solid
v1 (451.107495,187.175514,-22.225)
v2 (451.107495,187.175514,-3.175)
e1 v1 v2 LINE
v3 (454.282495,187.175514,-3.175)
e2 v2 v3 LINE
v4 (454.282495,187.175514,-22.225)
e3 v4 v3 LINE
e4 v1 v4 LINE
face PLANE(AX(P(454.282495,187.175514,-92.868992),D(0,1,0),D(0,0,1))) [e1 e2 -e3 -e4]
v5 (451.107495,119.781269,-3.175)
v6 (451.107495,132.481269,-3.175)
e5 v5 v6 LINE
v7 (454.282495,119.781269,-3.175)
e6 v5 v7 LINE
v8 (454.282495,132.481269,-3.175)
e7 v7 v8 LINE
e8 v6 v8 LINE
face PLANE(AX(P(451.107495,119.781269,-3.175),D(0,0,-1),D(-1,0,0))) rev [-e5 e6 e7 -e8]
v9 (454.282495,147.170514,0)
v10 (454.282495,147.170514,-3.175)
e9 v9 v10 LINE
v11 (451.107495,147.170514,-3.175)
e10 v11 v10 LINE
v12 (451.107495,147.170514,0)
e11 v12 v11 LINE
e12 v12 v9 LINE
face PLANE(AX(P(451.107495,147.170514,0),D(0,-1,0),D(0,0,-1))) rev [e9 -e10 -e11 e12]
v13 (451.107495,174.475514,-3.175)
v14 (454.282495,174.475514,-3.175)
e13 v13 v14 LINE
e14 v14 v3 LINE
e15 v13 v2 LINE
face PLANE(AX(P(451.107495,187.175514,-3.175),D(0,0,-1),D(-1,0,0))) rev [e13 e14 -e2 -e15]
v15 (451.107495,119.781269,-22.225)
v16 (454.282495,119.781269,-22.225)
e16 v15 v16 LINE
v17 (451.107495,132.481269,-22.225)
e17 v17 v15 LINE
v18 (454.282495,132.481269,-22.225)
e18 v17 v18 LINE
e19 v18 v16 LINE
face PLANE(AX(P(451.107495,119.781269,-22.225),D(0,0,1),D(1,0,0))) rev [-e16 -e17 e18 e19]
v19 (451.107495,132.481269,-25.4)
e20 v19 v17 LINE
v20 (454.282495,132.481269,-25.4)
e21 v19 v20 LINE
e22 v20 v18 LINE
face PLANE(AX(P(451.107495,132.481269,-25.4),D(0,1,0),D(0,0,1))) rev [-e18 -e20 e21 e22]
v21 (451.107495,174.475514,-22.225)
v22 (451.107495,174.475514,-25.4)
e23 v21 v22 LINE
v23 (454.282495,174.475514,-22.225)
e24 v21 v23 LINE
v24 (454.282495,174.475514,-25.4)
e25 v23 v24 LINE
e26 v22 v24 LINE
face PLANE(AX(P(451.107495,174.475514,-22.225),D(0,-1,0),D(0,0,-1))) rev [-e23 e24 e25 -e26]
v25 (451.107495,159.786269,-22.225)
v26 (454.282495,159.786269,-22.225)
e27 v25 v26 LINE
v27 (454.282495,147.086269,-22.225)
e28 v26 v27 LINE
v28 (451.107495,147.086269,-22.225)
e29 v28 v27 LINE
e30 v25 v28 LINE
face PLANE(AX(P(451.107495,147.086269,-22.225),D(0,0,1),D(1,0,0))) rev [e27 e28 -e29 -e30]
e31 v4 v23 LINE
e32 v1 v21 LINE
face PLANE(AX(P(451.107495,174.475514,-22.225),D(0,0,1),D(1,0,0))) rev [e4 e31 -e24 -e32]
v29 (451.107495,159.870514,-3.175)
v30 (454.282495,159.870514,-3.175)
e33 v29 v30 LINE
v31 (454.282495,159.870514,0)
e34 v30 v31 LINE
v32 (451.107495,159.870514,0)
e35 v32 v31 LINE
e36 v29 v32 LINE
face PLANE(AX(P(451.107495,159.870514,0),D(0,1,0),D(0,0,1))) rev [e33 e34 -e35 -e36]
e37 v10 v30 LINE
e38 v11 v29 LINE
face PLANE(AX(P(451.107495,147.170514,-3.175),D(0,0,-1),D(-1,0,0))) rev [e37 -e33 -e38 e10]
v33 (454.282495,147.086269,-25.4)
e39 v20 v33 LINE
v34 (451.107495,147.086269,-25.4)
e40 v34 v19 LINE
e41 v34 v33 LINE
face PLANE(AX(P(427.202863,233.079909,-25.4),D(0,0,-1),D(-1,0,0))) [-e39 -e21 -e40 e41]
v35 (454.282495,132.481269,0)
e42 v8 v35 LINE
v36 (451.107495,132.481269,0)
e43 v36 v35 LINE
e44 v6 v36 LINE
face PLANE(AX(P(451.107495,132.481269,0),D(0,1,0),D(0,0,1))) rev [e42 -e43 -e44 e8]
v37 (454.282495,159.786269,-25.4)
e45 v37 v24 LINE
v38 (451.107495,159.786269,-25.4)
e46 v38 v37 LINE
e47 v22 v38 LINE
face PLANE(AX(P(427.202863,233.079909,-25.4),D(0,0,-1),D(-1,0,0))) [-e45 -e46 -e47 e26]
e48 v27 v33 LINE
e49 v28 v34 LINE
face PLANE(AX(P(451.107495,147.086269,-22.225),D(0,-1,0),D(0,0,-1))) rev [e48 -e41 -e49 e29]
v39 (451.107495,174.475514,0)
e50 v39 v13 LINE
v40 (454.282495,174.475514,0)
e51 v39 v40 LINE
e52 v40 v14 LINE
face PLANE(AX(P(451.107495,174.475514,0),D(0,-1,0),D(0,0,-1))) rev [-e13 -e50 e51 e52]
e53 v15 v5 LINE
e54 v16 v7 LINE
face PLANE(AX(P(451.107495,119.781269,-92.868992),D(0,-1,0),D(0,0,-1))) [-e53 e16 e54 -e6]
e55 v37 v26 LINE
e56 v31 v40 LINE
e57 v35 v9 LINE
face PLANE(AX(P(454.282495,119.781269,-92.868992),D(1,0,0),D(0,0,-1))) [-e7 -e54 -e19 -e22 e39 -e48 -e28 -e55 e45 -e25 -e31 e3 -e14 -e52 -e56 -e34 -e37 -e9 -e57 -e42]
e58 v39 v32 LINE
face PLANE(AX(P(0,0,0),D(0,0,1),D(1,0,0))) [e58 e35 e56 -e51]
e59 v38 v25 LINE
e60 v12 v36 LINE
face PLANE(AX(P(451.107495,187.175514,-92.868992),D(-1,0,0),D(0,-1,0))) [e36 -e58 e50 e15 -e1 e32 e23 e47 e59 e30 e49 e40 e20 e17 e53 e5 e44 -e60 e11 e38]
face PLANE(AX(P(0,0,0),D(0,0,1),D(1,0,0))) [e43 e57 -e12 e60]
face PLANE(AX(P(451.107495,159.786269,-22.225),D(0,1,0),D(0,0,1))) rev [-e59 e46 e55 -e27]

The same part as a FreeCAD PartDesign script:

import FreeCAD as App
import Part
import Sketcher

V = App.Vector
Q = App.Units.Quantity

doc = App.newDocument("Part")
body = doc.addObject("PartDesign::Body", "Body")

sketch1 = doc.addObject("Sketcher::SketchObject", "Sketch")
body.addObject(sketch1)
sketch1.AttachmentSupport = (doc.XY_Plane, [""])
sketch1.MapMode = "FlatFace"
sketch1.addGeometry(Part.LineSegment(V(451.1, 187.2, 0), V(451.1, 119.8, 0)), False)
sketch1.addGeometry(Part.LineSegment(V(451.1, 119.8, 0), V(454.3, 119.8, 0)), False)
sketch1.addGeometry(Part.LineSegment(V(454.3, 119.8, 0), V(454.3, 187.2, 0)), False)
sketch1.addGeometry(Part.LineSegment(V(454.3, 187.2, 0), V(451.1, 187.2, 0)), False)
sketch1.addConstraint(Sketcher.Constraint("Coincident", 0, 2, 1, 1))
sketch1.addConstraint(Sketcher.Constraint("Coincident", 1, 2, 2, 1))
sketch1.addConstraint(Sketcher.Constraint("Coincident", 2, 2, 3, 1))
sketch1.addConstraint(Sketcher.Constraint("Coincident", 3, 2, 0, 1))
sketch1.addConstraint(Sketcher.Constraint("Vertical", 0))
sketch1.addConstraint(Sketcher.Constraint("Horizontal", 1))
sketch1.addConstraint(Sketcher.Constraint("Vertical", 2))
sketch1.addConstraint(Sketcher.Constraint("Horizontal", 3))
sketch1.addConstraint(Sketcher.Constraint("DistanceX", 1, 1, 1, 2, Q("0.125 in")))
sketch1.addConstraint(Sketcher.Constraint("DistanceY", 0, 2, 0, 1, 67.394245))
sketch1.addConstraint(Sketcher.Constraint("DistanceY", -1, 1, 0, 2, 119.781269))
sketch1.addConstraint(Sketcher.Constraint("DistanceX", -1, 1, 0, 2, 451.107495))
pad1 = doc.addObject("PartDesign::Pad", "Pad")
body.addObject(pad1)
pad1.Profile = sketch1
pad1.Length = Q("1 in")
pad1.Reversed = True

sketch2 = doc.addObject("Sketcher::SketchObject", "Sketch001")
body.addObject(sketch2)
sketch2.AttachmentSupport = (doc.YZ_Plane, [""])
sketch2.MapMode = "FlatFace"
sketch2.AttachmentOffset = App.Placement(V(0, 0, 454.282495), App.Rotation())
sketch2.addGeometry(Part.LineSegment(V(187.2, 0, 0), V(174.5, 0, 0)), False)
sketch2.addGeometry(Part.LineSegment(V(174.5, 0, 0), V(174.5, -3.2, 0)), False)
sketch2.addGeometry(Part.LineSegment(V(174.5, -3.2, 0), V(187.2, -3.2, 0)), False)
sketch2.addGeometry(Part.LineSegment(V(187.2, -3.2, 0), V(187.2, 0, 0)), False)
sketch2.addGeometry(Part.LineSegment(V(187.2, -22.2, 0), V(174.5, -22.2, 0)), False)
sketch2.addGeometry(Part.LineSegment(V(174.5, -22.2, 0), V(174.5, -25.4, 0)), False)
sketch2.addGeometry(Part.LineSegment(V(174.5, -25.4, 0), V(187.2, -25.4, 0)), False)
sketch2.addGeometry(Part.LineSegment(V(187.2, -25.4, 0), V(187.2, -22.2, 0)), False)
sketch2.addGeometry(Part.LineSegment(V(132.5, -22.2, 0), V(119.8, -22.2, 0)), False)
sketch2.addGeometry(Part.LineSegment(V(119.8, -22.2, 0), V(119.8, -25.4, 0)), False)
sketch2.addGeometry(Part.LineSegment(V(119.8, -25.4, 0), V(132.5, -25.4, 0)), False)
sketch2.addGeometry(Part.LineSegment(V(132.5, -25.4, 0), V(132.5, -22.2, 0)), False)
sketch2.addGeometry(Part.LineSegment(V(132.5, 0, 0), V(119.8, 0, 0)), False)
sketch2.addGeometry(Part.LineSegment(V(119.8, 0, 0), V(119.8, -3.2, 0)), False)
sketch2.addGeometry(Part.LineSegment(V(119.8, -3.2, 0), V(132.5, -3.2, 0)), False)
sketch2.addGeometry(Part.LineSegment(V(132.5, -3.2, 0), V(132.5, 0, 0)), False)
sketch2.addGeometry(Part.LineSegment(V(159.9, 0, 0), V(147.2, 0, 0)), False)
sketch2.addGeometry(Part.LineSegment(V(147.2, 0, 0), V(147.2, -3.2, 0)), False)
sketch2.addGeometry(Part.LineSegment(V(147.2, -3.2, 0), V(159.9, -3.2, 0)), False)
sketch2.addGeometry(Part.LineSegment(V(159.9, -3.2, 0), V(159.9, 0, 0)), False)
sketch2.addGeometry(Part.LineSegment(V(159.8, -22.2, 0), V(147.1, -22.2, 0)), False)
sketch2.addGeometry(Part.LineSegment(V(147.1, -22.2, 0), V(147.1, -25.4, 0)), False)
sketch2.addGeometry(Part.LineSegment(V(147.1, -25.4, 0), V(159.8, -25.4, 0)), False)
sketch2.addGeometry(Part.LineSegment(V(159.8, -25.4, 0), V(159.8, -22.2, 0)), False)
sketch2.addConstraint(Sketcher.Constraint("Coincident", 0, 2, 1, 1))
sketch2.addConstraint(Sketcher.Constraint("Coincident", 1, 2, 2, 1))
sketch2.addConstraint(Sketcher.Constraint("Coincident", 2, 2, 3, 1))
sketch2.addConstraint(Sketcher.Constraint("Coincident", 3, 2, 0, 1))
sketch2.addConstraint(Sketcher.Constraint("Coincident", 4, 2, 5, 1))
sketch2.addConstraint(Sketcher.Constraint("Coincident", 5, 2, 6, 1))
sketch2.addConstraint(Sketcher.Constraint("Coincident", 6, 2, 7, 1))
sketch2.addConstraint(Sketcher.Constraint("Coincident", 7, 2, 4, 1))
sketch2.addConstraint(Sketcher.Constraint("Coincident", 8, 2, 9, 1))
sketch2.addConstraint(Sketcher.Constraint("Coincident", 9, 2, 10, 1))
sketch2.addConstraint(Sketcher.Constraint("Coincident", 10, 2, 11, 1))
sketch2.addConstraint(Sketcher.Constraint("Coincident", 11, 2, 8, 1))
sketch2.addConstraint(Sketcher.Constraint("Coincident", 12, 2, 13, 1))
sketch2.addConstraint(Sketcher.Constraint("Coincident", 13, 2, 14, 1))
sketch2.addConstraint(Sketcher.Constraint("Coincident", 14, 2, 15, 1))
sketch2.addConstraint(Sketcher.Constraint("Coincident", 15, 2, 12, 1))
sketch2.addConstraint(Sketcher.Constraint("Coincident", 16, 2, 17, 1))
sketch2.addConstraint(Sketcher.Constraint("Coincident", 17, 2, 18, 1))
sketch2.addConstraint(Sketcher.Constraint("Coincident", 18, 2, 19, 1))
sketch2.addConstraint(Sketcher.Constraint("Coincident", 19, 2, 16, 1))
sketch2.addConstraint(Sketcher.Constraint("Coincident", 20, 2, 21, 1))
sketch2.addConstraint(Sketcher.Constraint("Coincident", 21, 2, 22, 1))
sketch2.addConstraint(Sketcher.Constraint("Coincident", 22, 2, 23, 1))
sketch2.addConstraint(Sketcher.Constraint("Coincident", 23, 2, 20, 1))
sketch2.addConstraint(Sketcher.Constraint("Horizontal", 0))
sketch2.addConstraint(Sketcher.Constraint("Vertical", 1))
sketch2.addConstraint(Sketcher.Constraint("Horizontal", 2))
sketch2.addConstraint(Sketcher.Constraint("Vertical", 3))
sketch2.addConstraint(Sketcher.Constraint("Horizontal", 4))
sketch2.addConstraint(Sketcher.Constraint("Vertical", 5))
sketch2.addConstraint(Sketcher.Constraint("Horizontal", 6))
sketch2.addConstraint(Sketcher.Constraint("Vertical", 7))
sketch2.addConstraint(Sketcher.Constraint("Horizontal", 8))
sketch2.addConstraint(Sketcher.Constraint("Vertical", 9))
sketch2.addConstraint(Sketcher.Constraint("Horizontal", 10))
sketch2.addConstraint(Sketcher.Constraint("Vertical", 11))
sketch2.addConstraint(Sketcher.Constraint("Horizontal", 12))
sketch2.addConstraint(Sketcher.Constraint("Vertical", 13))
sketch2.addConstraint(Sketcher.Constraint("Horizontal", 14))
sketch2.addConstraint(Sketcher.Constraint("Vertical", 15))
sketch2.addConstraint(Sketcher.Constraint("Horizontal", 16))
sketch2.addConstraint(Sketcher.Constraint("Vertical", 17))
sketch2.addConstraint(Sketcher.Constraint("Horizontal", 18))
sketch2.addConstraint(Sketcher.Constraint("Vertical", 19))
sketch2.addConstraint(Sketcher.Constraint("Horizontal", 20))
sketch2.addConstraint(Sketcher.Constraint("Vertical", 21))
sketch2.addConstraint(Sketcher.Constraint("Horizontal", 22))
sketch2.addConstraint(Sketcher.Constraint("Vertical", 23))
sketch2.addConstraint(Sketcher.Constraint("PointOnObject", 0, 2, -1))
sketch2.addConstraint(Sketcher.Constraint("PointOnObject", 12, 2, -1))
sketch2.addConstraint(Sketcher.Constraint("PointOnObject", 16, 2, -1))
sketch2.addConstraint(Sketcher.Constraint("Horizontal", 7, 2, 8, 2))
sketch2.addConstraint(Sketcher.Constraint("Horizontal", 6, 2, 9, 2))
sketch2.addConstraint(Sketcher.Constraint("Horizontal", 2, 2, 13, 2))
sketch2.addConstraint(Sketcher.Constraint("Horizontal", 14, 2, 17, 2))
sketch2.addConstraint(Sketcher.Constraint("Horizontal", 11, 2, 20, 2))
sketch2.addConstraint(Sketcher.Constraint("Horizontal", 10, 2, 21, 2))
sketch2.addConstraint(Sketcher.Constraint("Vertical", 1, 2, 4, 2))
sketch2.addConstraint(Sketcher.Constraint("Vertical", 3, 2, 6, 2))
sketch2.addConstraint(Sketcher.Constraint("Vertical", 9, 2, 12, 2))
sketch2.addConstraint(Sketcher.Constraint("Vertical", 11, 2, 14, 2))
sketch2.addConstraint(Sketcher.Constraint("Equal", 6, 8))
sketch2.addConstraint(Sketcher.Constraint("Equal", 14, 16))
sketch2.addConstraint(Sketcher.Constraint("Equal", 18, 20))
sketch2.addConstraint(Sketcher.Constraint("Equal", 3, 5))
sketch2.addConstraint(Sketcher.Constraint("DistanceX", 0, 2, 0, 1, Q("0.5 in")))
sketch2.addConstraint(Sketcher.Constraint("DistanceY", 5, 2, -1, 1, Q("1 in")))
sketch2.addConstraint(Sketcher.Constraint("DistanceY", 1, 2, 1, 1, Q("0.125 in")))
sketch2.addConstraint(Sketcher.Constraint("DistanceX", 16, 2, 0, 2, Q("1.075 in")))
sketch2.addConstraint(Sketcher.Constraint("DistanceX", 11, 2, 20, 2, Q("0.575 in")))
sketch2.addConstraint(Sketcher.Constraint("DistanceX", -1, 1, 8, 2, 119.781269))
sketch2.addConstraint(Sketcher.Constraint("DistanceX", -1, 1, 0, 2, 174.475514))
pocket1 = doc.addObject("PartDesign::Pocket", "Pocket")
body.addObject(pocket1)
pocket1.Profile = sketch2
pocket1.Length = Q("0.125 in")

doc.recompute()
